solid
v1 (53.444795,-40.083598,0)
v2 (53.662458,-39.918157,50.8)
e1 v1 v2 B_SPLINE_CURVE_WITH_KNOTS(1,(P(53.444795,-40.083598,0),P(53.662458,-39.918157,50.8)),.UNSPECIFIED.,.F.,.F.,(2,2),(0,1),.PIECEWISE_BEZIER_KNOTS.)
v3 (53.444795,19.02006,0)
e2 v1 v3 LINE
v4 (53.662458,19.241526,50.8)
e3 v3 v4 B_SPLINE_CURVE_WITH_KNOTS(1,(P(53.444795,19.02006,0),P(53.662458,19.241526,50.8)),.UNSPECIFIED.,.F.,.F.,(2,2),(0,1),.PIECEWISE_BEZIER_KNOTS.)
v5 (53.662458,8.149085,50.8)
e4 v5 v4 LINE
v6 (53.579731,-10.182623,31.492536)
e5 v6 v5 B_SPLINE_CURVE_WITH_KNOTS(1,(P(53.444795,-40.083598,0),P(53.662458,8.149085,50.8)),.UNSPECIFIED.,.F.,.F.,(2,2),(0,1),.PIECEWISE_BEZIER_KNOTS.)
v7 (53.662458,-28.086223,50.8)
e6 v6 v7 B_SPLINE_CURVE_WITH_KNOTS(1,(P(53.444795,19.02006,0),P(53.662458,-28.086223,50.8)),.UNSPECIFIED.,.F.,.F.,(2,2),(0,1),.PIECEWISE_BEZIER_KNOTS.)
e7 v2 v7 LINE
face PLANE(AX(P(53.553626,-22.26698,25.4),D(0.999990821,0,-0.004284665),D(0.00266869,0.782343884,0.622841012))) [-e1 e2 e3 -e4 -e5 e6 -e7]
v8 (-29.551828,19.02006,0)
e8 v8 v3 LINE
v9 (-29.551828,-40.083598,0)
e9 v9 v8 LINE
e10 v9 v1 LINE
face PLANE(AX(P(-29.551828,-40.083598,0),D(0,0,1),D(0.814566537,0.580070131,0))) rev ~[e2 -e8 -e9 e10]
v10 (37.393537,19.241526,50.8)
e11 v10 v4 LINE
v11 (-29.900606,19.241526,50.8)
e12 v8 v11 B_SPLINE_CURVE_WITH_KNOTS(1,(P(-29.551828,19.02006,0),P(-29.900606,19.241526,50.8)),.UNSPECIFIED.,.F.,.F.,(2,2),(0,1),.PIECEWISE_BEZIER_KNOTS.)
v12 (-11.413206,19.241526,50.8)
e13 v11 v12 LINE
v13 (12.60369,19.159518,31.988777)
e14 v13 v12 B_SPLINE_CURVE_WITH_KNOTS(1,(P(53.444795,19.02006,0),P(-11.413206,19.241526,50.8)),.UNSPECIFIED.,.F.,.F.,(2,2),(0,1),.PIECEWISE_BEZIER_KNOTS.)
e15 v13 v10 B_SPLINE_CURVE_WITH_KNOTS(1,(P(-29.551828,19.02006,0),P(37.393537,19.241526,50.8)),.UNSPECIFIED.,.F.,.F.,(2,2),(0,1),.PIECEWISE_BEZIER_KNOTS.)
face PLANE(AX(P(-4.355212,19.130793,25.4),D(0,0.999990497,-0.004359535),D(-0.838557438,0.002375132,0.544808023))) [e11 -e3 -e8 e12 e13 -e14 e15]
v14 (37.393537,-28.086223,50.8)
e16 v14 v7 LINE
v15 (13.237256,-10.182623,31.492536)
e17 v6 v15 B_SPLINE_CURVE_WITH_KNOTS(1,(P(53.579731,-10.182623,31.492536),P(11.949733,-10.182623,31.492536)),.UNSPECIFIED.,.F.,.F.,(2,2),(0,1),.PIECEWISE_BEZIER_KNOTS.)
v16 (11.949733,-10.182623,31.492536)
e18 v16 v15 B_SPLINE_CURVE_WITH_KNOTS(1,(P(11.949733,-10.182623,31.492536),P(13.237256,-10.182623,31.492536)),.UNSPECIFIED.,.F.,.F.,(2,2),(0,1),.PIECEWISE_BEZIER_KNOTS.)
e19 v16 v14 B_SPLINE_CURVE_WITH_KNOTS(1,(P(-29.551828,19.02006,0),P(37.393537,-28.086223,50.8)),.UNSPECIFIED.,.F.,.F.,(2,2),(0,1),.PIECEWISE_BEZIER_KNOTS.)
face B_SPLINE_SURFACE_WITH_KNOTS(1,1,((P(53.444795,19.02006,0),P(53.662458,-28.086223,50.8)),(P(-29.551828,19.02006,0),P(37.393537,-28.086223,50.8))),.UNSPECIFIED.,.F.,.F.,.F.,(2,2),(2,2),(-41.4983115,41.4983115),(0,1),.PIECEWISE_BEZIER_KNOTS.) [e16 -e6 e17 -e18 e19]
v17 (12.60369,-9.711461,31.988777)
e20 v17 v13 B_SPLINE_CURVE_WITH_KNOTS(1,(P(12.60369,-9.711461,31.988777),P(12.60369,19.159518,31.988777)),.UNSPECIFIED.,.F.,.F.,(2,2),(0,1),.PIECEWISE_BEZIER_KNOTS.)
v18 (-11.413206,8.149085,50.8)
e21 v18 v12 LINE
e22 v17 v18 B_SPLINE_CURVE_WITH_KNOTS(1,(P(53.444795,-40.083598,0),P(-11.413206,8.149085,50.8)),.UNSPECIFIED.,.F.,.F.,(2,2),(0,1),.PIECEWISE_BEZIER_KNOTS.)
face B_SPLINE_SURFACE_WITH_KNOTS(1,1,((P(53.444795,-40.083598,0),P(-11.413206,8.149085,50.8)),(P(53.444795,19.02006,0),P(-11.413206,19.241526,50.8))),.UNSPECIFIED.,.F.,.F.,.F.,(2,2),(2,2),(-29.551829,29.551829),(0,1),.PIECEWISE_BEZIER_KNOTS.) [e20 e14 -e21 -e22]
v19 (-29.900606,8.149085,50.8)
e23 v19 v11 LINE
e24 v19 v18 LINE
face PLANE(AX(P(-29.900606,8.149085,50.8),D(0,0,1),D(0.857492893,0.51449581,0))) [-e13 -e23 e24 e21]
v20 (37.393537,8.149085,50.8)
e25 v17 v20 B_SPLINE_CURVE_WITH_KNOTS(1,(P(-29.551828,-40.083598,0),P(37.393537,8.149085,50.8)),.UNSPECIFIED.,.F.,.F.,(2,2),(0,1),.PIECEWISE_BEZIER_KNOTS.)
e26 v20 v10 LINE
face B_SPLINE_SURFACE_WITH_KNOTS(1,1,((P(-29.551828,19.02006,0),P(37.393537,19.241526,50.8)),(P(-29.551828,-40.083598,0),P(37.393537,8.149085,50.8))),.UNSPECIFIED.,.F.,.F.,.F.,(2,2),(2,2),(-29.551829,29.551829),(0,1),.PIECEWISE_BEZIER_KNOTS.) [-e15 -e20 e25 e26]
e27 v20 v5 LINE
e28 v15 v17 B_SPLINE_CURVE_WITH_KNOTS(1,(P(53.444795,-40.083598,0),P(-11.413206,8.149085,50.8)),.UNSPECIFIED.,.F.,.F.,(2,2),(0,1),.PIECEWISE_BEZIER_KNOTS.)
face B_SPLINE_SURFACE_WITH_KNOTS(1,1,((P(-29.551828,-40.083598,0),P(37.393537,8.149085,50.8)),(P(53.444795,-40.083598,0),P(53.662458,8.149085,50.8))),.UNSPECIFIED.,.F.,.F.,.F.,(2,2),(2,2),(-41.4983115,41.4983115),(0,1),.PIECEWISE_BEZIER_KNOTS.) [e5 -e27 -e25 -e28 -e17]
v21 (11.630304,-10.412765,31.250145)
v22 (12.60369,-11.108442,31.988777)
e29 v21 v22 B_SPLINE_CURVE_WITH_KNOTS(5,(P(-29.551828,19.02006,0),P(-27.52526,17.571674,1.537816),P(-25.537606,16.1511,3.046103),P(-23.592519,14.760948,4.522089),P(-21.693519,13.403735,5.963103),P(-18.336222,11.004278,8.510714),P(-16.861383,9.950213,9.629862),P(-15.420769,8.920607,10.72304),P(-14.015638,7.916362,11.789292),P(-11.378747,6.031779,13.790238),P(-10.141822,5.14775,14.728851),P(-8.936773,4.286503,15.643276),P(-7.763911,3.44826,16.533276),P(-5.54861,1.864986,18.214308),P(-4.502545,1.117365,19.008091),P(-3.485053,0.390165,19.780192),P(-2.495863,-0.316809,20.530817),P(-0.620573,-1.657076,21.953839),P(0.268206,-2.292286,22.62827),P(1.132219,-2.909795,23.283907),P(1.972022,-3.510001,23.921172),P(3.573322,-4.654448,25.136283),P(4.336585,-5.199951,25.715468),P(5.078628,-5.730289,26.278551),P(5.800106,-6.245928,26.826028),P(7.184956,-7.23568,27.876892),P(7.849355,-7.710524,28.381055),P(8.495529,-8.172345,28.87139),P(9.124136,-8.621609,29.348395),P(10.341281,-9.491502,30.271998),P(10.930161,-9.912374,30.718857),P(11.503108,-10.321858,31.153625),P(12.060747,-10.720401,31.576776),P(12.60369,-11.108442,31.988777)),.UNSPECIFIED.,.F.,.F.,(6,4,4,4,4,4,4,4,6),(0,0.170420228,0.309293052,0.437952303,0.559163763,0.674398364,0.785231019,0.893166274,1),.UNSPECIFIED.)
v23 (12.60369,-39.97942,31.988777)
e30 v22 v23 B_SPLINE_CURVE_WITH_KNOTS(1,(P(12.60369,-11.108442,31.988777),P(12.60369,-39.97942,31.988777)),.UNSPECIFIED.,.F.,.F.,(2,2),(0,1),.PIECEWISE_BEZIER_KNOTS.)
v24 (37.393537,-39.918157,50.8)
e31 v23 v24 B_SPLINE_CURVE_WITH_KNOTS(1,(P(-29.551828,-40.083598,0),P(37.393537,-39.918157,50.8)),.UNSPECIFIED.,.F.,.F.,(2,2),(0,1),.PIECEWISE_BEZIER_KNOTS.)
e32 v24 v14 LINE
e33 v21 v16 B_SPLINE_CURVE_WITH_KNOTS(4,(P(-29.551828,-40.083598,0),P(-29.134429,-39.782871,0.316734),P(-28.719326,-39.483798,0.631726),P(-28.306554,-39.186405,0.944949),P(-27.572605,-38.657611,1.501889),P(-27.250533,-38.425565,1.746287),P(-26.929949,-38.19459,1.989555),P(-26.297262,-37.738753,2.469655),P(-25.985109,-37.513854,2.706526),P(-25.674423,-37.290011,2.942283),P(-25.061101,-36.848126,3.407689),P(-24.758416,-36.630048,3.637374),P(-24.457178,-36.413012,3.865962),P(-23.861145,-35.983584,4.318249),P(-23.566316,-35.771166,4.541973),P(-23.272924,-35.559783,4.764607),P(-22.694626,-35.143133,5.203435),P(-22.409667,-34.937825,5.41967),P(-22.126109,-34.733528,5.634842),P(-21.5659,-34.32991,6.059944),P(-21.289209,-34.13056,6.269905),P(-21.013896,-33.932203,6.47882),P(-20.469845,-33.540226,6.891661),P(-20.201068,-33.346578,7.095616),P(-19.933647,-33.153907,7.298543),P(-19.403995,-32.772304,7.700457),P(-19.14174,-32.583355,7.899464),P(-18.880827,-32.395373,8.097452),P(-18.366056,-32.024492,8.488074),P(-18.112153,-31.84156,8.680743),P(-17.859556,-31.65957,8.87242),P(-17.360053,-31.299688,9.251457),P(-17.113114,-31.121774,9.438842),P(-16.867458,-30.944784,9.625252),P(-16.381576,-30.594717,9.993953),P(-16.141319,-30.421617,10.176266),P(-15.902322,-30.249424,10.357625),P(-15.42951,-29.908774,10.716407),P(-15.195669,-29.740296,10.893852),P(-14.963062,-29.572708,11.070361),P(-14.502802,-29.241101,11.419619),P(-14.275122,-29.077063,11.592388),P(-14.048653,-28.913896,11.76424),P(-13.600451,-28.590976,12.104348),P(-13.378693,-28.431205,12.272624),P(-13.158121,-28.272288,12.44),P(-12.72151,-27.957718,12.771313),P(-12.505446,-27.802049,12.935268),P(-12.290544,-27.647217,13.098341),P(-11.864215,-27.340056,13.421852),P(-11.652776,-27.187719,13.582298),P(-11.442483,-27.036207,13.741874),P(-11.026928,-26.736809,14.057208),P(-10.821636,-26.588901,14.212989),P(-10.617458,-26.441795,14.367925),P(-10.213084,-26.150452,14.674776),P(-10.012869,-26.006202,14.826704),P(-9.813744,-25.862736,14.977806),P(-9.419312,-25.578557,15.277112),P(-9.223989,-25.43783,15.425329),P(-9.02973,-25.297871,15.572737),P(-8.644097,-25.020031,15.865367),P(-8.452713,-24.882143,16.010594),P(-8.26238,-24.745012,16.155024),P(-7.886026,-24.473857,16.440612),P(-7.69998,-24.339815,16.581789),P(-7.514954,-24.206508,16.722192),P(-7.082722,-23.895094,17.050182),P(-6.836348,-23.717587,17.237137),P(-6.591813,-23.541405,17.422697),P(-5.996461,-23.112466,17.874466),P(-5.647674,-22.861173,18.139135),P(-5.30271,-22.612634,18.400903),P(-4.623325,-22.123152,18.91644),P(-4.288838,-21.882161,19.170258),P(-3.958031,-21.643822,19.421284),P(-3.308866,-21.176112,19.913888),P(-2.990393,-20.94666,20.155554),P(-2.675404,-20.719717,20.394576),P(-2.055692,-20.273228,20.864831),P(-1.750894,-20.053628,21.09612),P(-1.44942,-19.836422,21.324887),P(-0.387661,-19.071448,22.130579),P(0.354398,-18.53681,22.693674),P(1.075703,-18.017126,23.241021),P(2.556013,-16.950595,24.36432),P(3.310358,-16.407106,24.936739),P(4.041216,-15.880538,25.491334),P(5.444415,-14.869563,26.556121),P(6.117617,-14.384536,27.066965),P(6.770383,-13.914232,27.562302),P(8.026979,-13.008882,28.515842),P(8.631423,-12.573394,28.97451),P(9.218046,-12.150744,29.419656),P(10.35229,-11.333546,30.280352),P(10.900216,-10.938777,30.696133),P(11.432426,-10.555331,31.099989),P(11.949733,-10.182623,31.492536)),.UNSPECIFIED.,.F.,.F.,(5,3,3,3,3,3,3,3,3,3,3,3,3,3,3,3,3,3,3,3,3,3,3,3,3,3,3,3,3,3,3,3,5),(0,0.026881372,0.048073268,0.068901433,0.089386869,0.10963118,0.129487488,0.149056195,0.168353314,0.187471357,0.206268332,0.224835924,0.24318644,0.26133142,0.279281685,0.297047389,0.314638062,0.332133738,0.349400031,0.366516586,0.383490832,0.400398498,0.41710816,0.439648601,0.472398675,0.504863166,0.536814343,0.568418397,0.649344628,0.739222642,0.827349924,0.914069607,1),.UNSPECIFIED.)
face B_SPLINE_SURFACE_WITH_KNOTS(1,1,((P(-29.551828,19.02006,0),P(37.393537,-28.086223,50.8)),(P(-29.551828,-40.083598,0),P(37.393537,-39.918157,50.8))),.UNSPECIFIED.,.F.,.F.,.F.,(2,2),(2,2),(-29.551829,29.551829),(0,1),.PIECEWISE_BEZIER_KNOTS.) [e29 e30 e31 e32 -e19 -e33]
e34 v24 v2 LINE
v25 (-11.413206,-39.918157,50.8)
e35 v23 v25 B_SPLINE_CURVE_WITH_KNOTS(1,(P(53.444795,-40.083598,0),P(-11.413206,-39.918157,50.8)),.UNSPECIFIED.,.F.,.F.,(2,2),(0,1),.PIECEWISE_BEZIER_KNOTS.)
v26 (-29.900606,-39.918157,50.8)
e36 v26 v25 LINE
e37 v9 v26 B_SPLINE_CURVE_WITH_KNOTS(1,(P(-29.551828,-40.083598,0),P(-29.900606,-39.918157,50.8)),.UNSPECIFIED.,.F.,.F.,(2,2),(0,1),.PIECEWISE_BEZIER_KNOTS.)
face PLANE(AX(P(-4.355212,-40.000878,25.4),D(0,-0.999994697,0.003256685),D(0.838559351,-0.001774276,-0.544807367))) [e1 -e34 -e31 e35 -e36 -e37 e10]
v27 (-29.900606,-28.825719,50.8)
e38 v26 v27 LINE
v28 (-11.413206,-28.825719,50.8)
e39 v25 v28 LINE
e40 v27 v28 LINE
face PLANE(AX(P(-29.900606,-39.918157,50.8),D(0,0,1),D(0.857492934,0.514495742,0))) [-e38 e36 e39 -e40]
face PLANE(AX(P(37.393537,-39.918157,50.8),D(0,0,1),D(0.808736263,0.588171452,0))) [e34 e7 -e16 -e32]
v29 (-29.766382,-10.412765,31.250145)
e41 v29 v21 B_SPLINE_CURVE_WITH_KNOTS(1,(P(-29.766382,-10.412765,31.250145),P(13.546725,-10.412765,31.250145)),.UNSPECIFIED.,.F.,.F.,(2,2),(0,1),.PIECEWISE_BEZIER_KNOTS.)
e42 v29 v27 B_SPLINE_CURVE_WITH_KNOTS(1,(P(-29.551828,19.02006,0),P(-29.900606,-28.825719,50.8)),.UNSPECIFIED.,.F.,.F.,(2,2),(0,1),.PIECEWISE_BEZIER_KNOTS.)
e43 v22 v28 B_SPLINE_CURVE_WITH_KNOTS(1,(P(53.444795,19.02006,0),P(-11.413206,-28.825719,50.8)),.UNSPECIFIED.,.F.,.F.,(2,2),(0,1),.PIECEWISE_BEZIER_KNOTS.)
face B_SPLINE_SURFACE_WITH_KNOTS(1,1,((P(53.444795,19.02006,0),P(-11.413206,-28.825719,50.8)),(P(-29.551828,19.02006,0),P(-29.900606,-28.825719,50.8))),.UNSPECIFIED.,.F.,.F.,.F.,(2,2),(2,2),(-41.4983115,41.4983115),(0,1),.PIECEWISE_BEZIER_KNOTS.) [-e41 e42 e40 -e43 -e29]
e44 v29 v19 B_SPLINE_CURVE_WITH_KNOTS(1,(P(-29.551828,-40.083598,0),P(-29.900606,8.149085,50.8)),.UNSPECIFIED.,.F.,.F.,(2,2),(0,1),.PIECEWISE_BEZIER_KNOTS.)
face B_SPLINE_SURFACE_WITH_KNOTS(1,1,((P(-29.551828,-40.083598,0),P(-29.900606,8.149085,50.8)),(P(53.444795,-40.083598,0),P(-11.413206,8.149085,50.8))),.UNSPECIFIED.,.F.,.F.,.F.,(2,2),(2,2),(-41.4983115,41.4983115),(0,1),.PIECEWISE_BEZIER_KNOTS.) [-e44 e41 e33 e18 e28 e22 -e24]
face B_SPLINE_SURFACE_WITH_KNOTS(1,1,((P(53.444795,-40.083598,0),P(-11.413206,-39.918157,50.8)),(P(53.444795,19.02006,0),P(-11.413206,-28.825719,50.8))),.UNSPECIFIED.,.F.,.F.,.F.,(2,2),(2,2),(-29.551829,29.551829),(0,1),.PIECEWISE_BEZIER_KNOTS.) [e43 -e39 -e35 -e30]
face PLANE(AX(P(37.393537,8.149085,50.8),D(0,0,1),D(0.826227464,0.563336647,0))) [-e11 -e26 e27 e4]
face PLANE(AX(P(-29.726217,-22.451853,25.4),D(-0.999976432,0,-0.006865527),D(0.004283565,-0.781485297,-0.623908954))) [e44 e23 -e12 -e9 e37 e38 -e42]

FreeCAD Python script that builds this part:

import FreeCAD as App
import Part
import Sketcher


def add_polygon(sketch, points):
    """Adds a closed chain of lines whose ends are joined by coincident constraints."""
    first, n = sketch.GeometryCount, len(points)
    for a, b in zip(points, points[1:] + points[:1]):
        sketch.addGeometry(Part.LineSegment(App.Vector(*a, 0), App.Vector(*b, 0)), False)
    for i in range(n):
        sketch.addConstraint(Sketcher.Constraint("Coincident", first + i, 2, first + (i + 1) % n, 1))

doc = App.newDocument("Part")
body = doc.addObject("PartDesign::Body", "Body")

# Sketch on XY plane
sketch1 = body.newObject("Sketcher::SketchObject", "Sketch")
sketch1.AttachmentSupport = (doc.getObject("XY_Plane"), [""])
sketch1.MapMode = "FlatFace"
add_polygon(sketch1, [(-30, 19), (-30, -40), (53, -40), (53, 19)])  # lines 0-3
sketch1.addConstraint([
    Sketcher.Constraint("Vertical", 0),
    Sketcher.Constraint("Horizontal", 1),
    Sketcher.Constraint("Vertical", 2),
    Sketcher.Constraint("Horizontal", 3),
    Sketcher.Constraint("DistanceY", 0, 2, 0, 1, 59.103658),
    Sketcher.Constraint("DistanceY", 0, 2, -1, 1, 40.083598),
    Sketcher.Constraint("DistanceX", 1, 1, 1, 2, 82.996623),
    Sketcher.Constraint("DistanceX", 0, 2, -1, 1, 29.551828),
])

# Sketch on XY plane
sketch2 = body.newObject("Sketcher::SketchObject", "Sketch001")
sketch2.AttachmentSupport = (doc.getObject("XY_Plane"), [""])
sketch2.MapMode = "FlatFace"
sketch2.AttachmentOffset = App.Placement(App.Vector(0, 0, 50.8), App.Rotation())
add_polygon(sketch2, [(-30, 19), (-30, 8), (-11, 8), (-11, 19)])  # lines 0-3
sketch2.addConstraint([
    Sketcher.Constraint("Vertical", 0),
    Sketcher.Constraint("Horizontal", 1),
    Sketcher.Constraint("Vertical", 2),
    Sketcher.Constraint("Horizontal", 3),
    Sketcher.Constraint("DistanceX", 1, 1, 1, 2, 18.487399),
    Sketcher.Constraint("DistanceY", 0, 2, 0, 1, 11.092441),
    Sketcher.Constraint("DistanceX", 0, 2, -1, 1, 29.900606),
    Sketcher.Constraint("DistanceY", -1, 1, 0, 2, 8.149085),
])

additiveloft = body.newObject("PartDesign::AdditiveLoft", "AdditiveLoft")
additiveloft.Profile = sketch1
additiveloft.Sections = [sketch2]

# Sketch on XY plane
sketch3 = body.newObject("Sketcher::SketchObject", "Sketch002")
sketch3.AttachmentSupport = (doc.getObject("XY_Plane"), [""])
sketch3.MapMode = "FlatFace"
add_polygon(sketch3, [(-30, 19), (-30, -40), (53, -40), (53, 19)])  # lines 0-3
sketch3.addConstraint([
    Sketcher.Constraint("Vertical", 0),
    Sketcher.Constraint("Horizontal", 1),
    Sketcher.Constraint("Vertical", 2),
    Sketcher.Constraint("Horizontal", 3),
    Sketcher.Constraint("DistanceY", 0, 2, 0, 1, 59.103658),
    Sketcher.Constraint("DistanceY", 0, 2, -1, 1, 40.083598),
    Sketcher.Constraint("DistanceX", 1, 1, 1, 2, 82.996623),
    Sketcher.Constraint("DistanceX", 0, 2, -1, 1, 29.551828),
])

# Sketch on XY plane
sketch4 = body.newObject("Sketcher::SketchObject", "Sketch003")
sketch4.AttachmentSupport = (doc.getObject("XY_Plane"), [""])
sketch4.MapMode = "FlatFace"
sketch4.AttachmentOffset = App.Placement(App.Vector(0, 0, 50.8), App.Rotation())
add_polygon(sketch4, [(37, -28), (37, -40), (54, -40), (54, -28)])  # lines 0-3
sketch4.addConstraint([
    Sketcher.Constraint("Vertical", 0),
    Sketcher.Constraint("Horizontal", 1),
    Sketcher.Constraint("Vertical", 2),
    Sketcher.Constraint("Horizontal", 3),
    Sketcher.Constraint("DistanceX", 1, 1, 1, 2, 16.268921),
    Sketcher.Constraint("DistanceY", 0, 2, 0, 1, 11.831935),
    Sketcher.Constraint("DistanceX", -1, 1, 0, 2, 37.393537),
    Sketcher.Constraint("DistanceY", 0, 2, -1, 1, 39.918157),
])

additiveloft2 = body.newObject("PartDesign::AdditiveLoft", "AdditiveLoft001")
additiveloft2.Profile = sketch3
additiveloft2.Sections = [sketch4]

# Sketch on XY plane
sketch5 = body.newObject("Sketcher::SketchObject", "Sketch004")
sketch5.AttachmentSupport = (doc.getObject("XY_Plane"), [""])
sketch5.MapMode = "FlatFace"
add_polygon(sketch5, [(-30, 19), (-30, -40), (53, -40), (53, 19)])  # lines 0-3
sketch5.addConstraint([
    Sketcher.Constraint("Vertical", 0),
    Sketcher.Constraint("Horizontal", 1),
    Sketcher.Constraint("Vertical", 2),
    Sketcher.Constraint("Horizontal", 3),
    Sketcher.Constraint("DistanceY", 0, 2, 0, 1, 59.103658),
    Sketcher.Constraint("DistanceY", 0, 2, -1, 1, 40.083598),
    Sketcher.Constraint("DistanceX", 1, 1, 1, 2, 82.996623),
    Sketcher.Constraint("DistanceX", 0, 2, -1, 1, 29.551828),
])

# Sketch on XY plane
sketch6 = body.newObject("Sketcher::SketchObject", "Sketch005")
sketch6.AttachmentSupport = (doc.getObject("XY_Plane"), [""])
sketch6.MapMode = "FlatFace"
sketch6.AttachmentOffset = App.Placement(App.Vector(0, 0, 50.8), App.Rotation())
add_polygon(sketch6, [(-30, -29), (-30, -40), (-11, -40), (-11, -29)])  # lines 0-3
sketch6.addConstraint([
    Sketcher.Constraint("Vertical", 0),
    Sketcher.Constraint("Horizontal", 1),
    Sketcher.Constraint("Vertical", 2),
    Sketcher.Constraint("Horizontal", 3),
    Sketcher.Constraint("DistanceX", 1, 1, 1, 2, 18.487399),
    Sketcher.Constraint("DistanceY", 0, 2, 0, 1, 11.092439),
    Sketcher.Constraint("DistanceY", 2, 2, -1, 1, 28.825719),
    Sketcher.Constraint("DistanceX", 0, 2, -1, 1, 29.900606),
])

additiveloft3 = body.newObject("PartDesign::AdditiveLoft", "AdditiveLoft002")
additiveloft3.Profile = sketch5
additiveloft3.Sections = [sketch6]

# Sketch on XY plane
sketch7 = body.newObject("Sketcher::SketchObject", "Sketch006")
sketch7.AttachmentSupport = (doc.getObject("XY_Plane"), [""])
sketch7.MapMode = "FlatFace"
add_polygon(sketch7, [(-30, 19), (-30, -40), (53, -40), (53, 19)])  # lines 0-3
sketch7.addConstraint([
    Sketcher.Constraint("Vertical", 0),
    Sketcher.Constraint("Horizontal", 1),
    Sketcher.Constraint("Vertical", 2),
    Sketcher.Constraint("Horizontal", 3),
    Sketcher.Constraint("DistanceY", 0, 2, 0, 1, 59.103658),
    Sketcher.Constraint("DistanceY", 0, 2, -1, 1, 40.083598),
    Sketcher.Constraint("DistanceX", 1, 1, 1, 2, 82.996623),
    Sketcher.Constraint("DistanceX", 0, 2, -1, 1, 29.551828),
])

# Sketch on XY plane
sketch8 = body.newObject("Sketcher::SketchObject", "Sketch007")
sketch8.AttachmentSupport = (doc.getObject("XY_Plane"), [""])
sketch8.MapMode = "FlatFace"
sketch8.AttachmentOffset = App.Placement(App.Vector(0, 0, 50.8), App.Rotation())
add_polygon(sketch8, [(37, 19), (37, 8), (54, 8), (54, 19)])  # lines 0-3
sketch8.addConstraint([
    Sketcher.Constraint("Vertical", 0),
    Sketcher.Constraint("Horizontal", 1),
    Sketcher.Constraint("Vertical", 2),
    Sketcher.Constraint("Horizontal", 3),
    Sketcher.Constraint("DistanceX", 1, 1, 1, 2, 16.268921),
    Sketcher.Constraint("DistanceY", 0, 2, 0, 1, 11.092441),
    Sketcher.Constraint("DistanceX", -1, 1, 0, 2, 37.393537),
    Sketcher.Constraint("DistanceY", -1, 1, 0, 2, 8.149085),
])

additiveloft4 = body.newObject("PartDesign::AdditiveLoft", "AdditiveLoft003")
additiveloft4.Profile = sketch7
additiveloft4.Sections = [sketch8]

doc.recompute()
